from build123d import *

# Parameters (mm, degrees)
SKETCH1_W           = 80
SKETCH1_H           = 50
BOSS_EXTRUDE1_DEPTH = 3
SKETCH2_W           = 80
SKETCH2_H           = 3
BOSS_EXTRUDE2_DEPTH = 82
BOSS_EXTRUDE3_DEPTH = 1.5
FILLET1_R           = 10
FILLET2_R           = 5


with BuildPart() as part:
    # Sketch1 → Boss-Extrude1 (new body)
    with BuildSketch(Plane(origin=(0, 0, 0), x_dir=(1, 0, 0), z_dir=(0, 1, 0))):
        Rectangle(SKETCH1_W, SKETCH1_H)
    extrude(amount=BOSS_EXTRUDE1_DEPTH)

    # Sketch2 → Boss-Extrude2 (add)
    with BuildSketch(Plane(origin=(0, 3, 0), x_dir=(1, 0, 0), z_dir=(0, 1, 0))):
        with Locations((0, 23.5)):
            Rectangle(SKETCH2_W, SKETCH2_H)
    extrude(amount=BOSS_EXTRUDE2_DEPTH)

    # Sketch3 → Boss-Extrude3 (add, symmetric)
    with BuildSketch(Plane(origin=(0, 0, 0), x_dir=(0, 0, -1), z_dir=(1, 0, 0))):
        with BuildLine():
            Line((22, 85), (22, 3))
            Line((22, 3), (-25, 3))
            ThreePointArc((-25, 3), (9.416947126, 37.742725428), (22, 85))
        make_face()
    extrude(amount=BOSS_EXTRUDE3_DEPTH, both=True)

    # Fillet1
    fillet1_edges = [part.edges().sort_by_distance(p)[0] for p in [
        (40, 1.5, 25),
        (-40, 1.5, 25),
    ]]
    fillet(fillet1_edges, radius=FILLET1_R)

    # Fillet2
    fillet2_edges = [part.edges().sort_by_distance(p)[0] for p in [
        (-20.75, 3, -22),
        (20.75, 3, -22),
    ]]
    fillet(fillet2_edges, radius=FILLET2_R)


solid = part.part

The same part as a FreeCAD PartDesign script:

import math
import FreeCAD as App
import Part
import Sketcher


def edges_at(feature, points):
    """Names of the edges that pass closest to the given points."""
    edges = feature.Shape.Edges
    near = lambda p: min(range(len(edges)), key=lambda i: edges[i].distToShape(Part.Vertex(*p))[0])
    return sorted({f"Edge{near(p) + 1}" for p in points})


def add_polygon(sketch, points):
    """Adds a closed chain of lines whose ends are joined by coincident constraints."""
    first, n = sketch.GeometryCount, len(points)
    for a, b in zip(points, points[1:] + points[:1]):
        sketch.addGeometry(Part.LineSegment(App.Vector(*a, 0), App.Vector(*b, 0)), False)
    for i in range(n):
        sketch.addConstraint(Sketcher.Constraint("Coincident", first + i, 2, first + (i + 1) % n, 1))

doc = App.newDocument("Part")
body = doc.addObject("PartDesign::Body", "Body")

sketch1 = body.newObject("Sketcher::SketchObject", "Sketch")
sketch1.AttachmentSupport = (doc.getObject("XZ_Plane"), [""])
sketch1.MapMode = "FlatFace"
add_polygon(sketch1, [(-40, -25), (-40, 25), (40, 25), (40, -25)])
sketch1.addConstraint(Sketcher.Constraint("Vertical", 0))
sketch1.addConstraint(Sketcher.Constraint("Horizontal", 1))
sketch1.addConstraint(Sketcher.Constraint("Vertical", 2))
sketch1.addConstraint(Sketcher.Constraint("Horizontal", 3))
sketch1.addConstraint(Sketcher.Constraint("Symmetric", 0, 2, 2, 2, -1, 1))
sketch1.addConstraint(Sketcher.Constraint("DistanceX", 1, 1, 1, 2, 80.0))
sketch1.addConstraint(Sketcher.Constraint("DistanceY", 0, 1, 0, 2, 50.0))
pad1 = body.newObject("PartDesign::Pad", "Pad")
pad1.Profile = sketch1
pad1.Length = 3
pad1.Reversed = True

sketch2 = body.newObject("Sketcher::SketchObject", "Sketch001")
sketch2.AttachmentSupport = (doc.getObject("XZ_Plane"), [""])
sketch2.MapMode = "FlatFace"
sketch2.AttachmentOffset = App.Placement(App.Vector(0, 0, -3), App.Rotation())
add_polygon(sketch2, [(-40, -25), (-40, -22), (40, -22), (40, -25)])
sketch2.addConstraint(Sketcher.Constraint("Vertical", 0))
sketch2.addConstraint(Sketcher.Constraint("Horizontal", 1))
sketch2.addConstraint(Sketcher.Constraint("Vertical", 2))
sketch2.addConstraint(Sketcher.Constraint("Horizontal", 3))
sketch2.addConstraint(Sketcher.Constraint("DistanceX", 1, 1, 1, 2, 80.0))
sketch2.addConstraint(Sketcher.Constraint("DistanceY", 0, 1, 0, 2, 3.0))
sketch2.addConstraint(Sketcher.Constraint("DistanceX", 0, 2, -1, 1, 40.0))
sketch2.addConstraint(Sketcher.Constraint("DistanceY", 0, 2, -1, 1, 22.0))
pad2 = body.newObject("PartDesign::Pad", "Pad001")
pad2.Profile = sketch2
pad2.Length = 82
pad2.Reversed = True

sketch3 = body.newObject("Sketcher::SketchObject", "Sketch002")
sketch3.AttachmentSupport = (doc.getObject("YZ_Plane"), [""])
sketch3.MapMode = "FlatFace"
sketch3.addGeometry(Part.LineSegment(App.Vector(3, -22, 0), App.Vector(85, -22, 0)), False)
sketch3.addGeometry(Part.ArcOfCircle(Part.Circle(App.Vector(85, 73.031915, 0), App.Vector(0, 0, 1), 95.031915), math.radians(-149.640145), math.radians(-90)), False)
sketch3.addGeometry(Part.LineSegment(App.Vector(3, 25, 0), App.Vector(3, -22, 0)), False)
sketch3.addConstraint(Sketcher.Constraint("Tangent", 0, 2, 1, 2))
sketch3.addConstraint(Sketcher.Constraint("Coincident", 1, 1, 2, 1))
sketch3.addConstraint(Sketcher.Constraint("Coincident", 2, 2, 0, 1))
sketch3.addConstraint(Sketcher.Constraint("Horizontal", 0))
sketch3.addConstraint(Sketcher.Constraint("Vertical", 2))
sketch3.addConstraint(Sketcher.Constraint("DistanceX", 0, 1, 0, 2, 82.0))
sketch3.addConstraint(Sketcher.Constraint("DistanceY", 2, 2, 2, 1, 47.0))
sketch3.addConstraint(Sketcher.Constraint("DistanceX", -1, 1, 1, 3, 85.0))
sketch3.addConstraint(Sketcher.Constraint("DistanceY", 0, 2, -1, 1, 22.0))
pad3 = body.newObject("PartDesign::Pad", "Pad002")
pad3.Profile = sketch3
pad3.Length = 3
pad3.Midplane = True
doc.recompute()

fillet = body.newObject("PartDesign::Fillet", "Fillet")
fillet.Base = (pad3, edges_at(pad3, [(40, 1.5, 25), (-40, 1.5, 25)]))
fillet.Radius = 10
doc.recompute()

fillet2 = body.newObject("PartDesign::Fillet", "Fillet001")
fillet2.Base = (fillet, edges_at(fillet, [(-20.75, 3, -22), (20.75, 3, -22)]))
fillet2.Radius = 5

doc.recompute()
